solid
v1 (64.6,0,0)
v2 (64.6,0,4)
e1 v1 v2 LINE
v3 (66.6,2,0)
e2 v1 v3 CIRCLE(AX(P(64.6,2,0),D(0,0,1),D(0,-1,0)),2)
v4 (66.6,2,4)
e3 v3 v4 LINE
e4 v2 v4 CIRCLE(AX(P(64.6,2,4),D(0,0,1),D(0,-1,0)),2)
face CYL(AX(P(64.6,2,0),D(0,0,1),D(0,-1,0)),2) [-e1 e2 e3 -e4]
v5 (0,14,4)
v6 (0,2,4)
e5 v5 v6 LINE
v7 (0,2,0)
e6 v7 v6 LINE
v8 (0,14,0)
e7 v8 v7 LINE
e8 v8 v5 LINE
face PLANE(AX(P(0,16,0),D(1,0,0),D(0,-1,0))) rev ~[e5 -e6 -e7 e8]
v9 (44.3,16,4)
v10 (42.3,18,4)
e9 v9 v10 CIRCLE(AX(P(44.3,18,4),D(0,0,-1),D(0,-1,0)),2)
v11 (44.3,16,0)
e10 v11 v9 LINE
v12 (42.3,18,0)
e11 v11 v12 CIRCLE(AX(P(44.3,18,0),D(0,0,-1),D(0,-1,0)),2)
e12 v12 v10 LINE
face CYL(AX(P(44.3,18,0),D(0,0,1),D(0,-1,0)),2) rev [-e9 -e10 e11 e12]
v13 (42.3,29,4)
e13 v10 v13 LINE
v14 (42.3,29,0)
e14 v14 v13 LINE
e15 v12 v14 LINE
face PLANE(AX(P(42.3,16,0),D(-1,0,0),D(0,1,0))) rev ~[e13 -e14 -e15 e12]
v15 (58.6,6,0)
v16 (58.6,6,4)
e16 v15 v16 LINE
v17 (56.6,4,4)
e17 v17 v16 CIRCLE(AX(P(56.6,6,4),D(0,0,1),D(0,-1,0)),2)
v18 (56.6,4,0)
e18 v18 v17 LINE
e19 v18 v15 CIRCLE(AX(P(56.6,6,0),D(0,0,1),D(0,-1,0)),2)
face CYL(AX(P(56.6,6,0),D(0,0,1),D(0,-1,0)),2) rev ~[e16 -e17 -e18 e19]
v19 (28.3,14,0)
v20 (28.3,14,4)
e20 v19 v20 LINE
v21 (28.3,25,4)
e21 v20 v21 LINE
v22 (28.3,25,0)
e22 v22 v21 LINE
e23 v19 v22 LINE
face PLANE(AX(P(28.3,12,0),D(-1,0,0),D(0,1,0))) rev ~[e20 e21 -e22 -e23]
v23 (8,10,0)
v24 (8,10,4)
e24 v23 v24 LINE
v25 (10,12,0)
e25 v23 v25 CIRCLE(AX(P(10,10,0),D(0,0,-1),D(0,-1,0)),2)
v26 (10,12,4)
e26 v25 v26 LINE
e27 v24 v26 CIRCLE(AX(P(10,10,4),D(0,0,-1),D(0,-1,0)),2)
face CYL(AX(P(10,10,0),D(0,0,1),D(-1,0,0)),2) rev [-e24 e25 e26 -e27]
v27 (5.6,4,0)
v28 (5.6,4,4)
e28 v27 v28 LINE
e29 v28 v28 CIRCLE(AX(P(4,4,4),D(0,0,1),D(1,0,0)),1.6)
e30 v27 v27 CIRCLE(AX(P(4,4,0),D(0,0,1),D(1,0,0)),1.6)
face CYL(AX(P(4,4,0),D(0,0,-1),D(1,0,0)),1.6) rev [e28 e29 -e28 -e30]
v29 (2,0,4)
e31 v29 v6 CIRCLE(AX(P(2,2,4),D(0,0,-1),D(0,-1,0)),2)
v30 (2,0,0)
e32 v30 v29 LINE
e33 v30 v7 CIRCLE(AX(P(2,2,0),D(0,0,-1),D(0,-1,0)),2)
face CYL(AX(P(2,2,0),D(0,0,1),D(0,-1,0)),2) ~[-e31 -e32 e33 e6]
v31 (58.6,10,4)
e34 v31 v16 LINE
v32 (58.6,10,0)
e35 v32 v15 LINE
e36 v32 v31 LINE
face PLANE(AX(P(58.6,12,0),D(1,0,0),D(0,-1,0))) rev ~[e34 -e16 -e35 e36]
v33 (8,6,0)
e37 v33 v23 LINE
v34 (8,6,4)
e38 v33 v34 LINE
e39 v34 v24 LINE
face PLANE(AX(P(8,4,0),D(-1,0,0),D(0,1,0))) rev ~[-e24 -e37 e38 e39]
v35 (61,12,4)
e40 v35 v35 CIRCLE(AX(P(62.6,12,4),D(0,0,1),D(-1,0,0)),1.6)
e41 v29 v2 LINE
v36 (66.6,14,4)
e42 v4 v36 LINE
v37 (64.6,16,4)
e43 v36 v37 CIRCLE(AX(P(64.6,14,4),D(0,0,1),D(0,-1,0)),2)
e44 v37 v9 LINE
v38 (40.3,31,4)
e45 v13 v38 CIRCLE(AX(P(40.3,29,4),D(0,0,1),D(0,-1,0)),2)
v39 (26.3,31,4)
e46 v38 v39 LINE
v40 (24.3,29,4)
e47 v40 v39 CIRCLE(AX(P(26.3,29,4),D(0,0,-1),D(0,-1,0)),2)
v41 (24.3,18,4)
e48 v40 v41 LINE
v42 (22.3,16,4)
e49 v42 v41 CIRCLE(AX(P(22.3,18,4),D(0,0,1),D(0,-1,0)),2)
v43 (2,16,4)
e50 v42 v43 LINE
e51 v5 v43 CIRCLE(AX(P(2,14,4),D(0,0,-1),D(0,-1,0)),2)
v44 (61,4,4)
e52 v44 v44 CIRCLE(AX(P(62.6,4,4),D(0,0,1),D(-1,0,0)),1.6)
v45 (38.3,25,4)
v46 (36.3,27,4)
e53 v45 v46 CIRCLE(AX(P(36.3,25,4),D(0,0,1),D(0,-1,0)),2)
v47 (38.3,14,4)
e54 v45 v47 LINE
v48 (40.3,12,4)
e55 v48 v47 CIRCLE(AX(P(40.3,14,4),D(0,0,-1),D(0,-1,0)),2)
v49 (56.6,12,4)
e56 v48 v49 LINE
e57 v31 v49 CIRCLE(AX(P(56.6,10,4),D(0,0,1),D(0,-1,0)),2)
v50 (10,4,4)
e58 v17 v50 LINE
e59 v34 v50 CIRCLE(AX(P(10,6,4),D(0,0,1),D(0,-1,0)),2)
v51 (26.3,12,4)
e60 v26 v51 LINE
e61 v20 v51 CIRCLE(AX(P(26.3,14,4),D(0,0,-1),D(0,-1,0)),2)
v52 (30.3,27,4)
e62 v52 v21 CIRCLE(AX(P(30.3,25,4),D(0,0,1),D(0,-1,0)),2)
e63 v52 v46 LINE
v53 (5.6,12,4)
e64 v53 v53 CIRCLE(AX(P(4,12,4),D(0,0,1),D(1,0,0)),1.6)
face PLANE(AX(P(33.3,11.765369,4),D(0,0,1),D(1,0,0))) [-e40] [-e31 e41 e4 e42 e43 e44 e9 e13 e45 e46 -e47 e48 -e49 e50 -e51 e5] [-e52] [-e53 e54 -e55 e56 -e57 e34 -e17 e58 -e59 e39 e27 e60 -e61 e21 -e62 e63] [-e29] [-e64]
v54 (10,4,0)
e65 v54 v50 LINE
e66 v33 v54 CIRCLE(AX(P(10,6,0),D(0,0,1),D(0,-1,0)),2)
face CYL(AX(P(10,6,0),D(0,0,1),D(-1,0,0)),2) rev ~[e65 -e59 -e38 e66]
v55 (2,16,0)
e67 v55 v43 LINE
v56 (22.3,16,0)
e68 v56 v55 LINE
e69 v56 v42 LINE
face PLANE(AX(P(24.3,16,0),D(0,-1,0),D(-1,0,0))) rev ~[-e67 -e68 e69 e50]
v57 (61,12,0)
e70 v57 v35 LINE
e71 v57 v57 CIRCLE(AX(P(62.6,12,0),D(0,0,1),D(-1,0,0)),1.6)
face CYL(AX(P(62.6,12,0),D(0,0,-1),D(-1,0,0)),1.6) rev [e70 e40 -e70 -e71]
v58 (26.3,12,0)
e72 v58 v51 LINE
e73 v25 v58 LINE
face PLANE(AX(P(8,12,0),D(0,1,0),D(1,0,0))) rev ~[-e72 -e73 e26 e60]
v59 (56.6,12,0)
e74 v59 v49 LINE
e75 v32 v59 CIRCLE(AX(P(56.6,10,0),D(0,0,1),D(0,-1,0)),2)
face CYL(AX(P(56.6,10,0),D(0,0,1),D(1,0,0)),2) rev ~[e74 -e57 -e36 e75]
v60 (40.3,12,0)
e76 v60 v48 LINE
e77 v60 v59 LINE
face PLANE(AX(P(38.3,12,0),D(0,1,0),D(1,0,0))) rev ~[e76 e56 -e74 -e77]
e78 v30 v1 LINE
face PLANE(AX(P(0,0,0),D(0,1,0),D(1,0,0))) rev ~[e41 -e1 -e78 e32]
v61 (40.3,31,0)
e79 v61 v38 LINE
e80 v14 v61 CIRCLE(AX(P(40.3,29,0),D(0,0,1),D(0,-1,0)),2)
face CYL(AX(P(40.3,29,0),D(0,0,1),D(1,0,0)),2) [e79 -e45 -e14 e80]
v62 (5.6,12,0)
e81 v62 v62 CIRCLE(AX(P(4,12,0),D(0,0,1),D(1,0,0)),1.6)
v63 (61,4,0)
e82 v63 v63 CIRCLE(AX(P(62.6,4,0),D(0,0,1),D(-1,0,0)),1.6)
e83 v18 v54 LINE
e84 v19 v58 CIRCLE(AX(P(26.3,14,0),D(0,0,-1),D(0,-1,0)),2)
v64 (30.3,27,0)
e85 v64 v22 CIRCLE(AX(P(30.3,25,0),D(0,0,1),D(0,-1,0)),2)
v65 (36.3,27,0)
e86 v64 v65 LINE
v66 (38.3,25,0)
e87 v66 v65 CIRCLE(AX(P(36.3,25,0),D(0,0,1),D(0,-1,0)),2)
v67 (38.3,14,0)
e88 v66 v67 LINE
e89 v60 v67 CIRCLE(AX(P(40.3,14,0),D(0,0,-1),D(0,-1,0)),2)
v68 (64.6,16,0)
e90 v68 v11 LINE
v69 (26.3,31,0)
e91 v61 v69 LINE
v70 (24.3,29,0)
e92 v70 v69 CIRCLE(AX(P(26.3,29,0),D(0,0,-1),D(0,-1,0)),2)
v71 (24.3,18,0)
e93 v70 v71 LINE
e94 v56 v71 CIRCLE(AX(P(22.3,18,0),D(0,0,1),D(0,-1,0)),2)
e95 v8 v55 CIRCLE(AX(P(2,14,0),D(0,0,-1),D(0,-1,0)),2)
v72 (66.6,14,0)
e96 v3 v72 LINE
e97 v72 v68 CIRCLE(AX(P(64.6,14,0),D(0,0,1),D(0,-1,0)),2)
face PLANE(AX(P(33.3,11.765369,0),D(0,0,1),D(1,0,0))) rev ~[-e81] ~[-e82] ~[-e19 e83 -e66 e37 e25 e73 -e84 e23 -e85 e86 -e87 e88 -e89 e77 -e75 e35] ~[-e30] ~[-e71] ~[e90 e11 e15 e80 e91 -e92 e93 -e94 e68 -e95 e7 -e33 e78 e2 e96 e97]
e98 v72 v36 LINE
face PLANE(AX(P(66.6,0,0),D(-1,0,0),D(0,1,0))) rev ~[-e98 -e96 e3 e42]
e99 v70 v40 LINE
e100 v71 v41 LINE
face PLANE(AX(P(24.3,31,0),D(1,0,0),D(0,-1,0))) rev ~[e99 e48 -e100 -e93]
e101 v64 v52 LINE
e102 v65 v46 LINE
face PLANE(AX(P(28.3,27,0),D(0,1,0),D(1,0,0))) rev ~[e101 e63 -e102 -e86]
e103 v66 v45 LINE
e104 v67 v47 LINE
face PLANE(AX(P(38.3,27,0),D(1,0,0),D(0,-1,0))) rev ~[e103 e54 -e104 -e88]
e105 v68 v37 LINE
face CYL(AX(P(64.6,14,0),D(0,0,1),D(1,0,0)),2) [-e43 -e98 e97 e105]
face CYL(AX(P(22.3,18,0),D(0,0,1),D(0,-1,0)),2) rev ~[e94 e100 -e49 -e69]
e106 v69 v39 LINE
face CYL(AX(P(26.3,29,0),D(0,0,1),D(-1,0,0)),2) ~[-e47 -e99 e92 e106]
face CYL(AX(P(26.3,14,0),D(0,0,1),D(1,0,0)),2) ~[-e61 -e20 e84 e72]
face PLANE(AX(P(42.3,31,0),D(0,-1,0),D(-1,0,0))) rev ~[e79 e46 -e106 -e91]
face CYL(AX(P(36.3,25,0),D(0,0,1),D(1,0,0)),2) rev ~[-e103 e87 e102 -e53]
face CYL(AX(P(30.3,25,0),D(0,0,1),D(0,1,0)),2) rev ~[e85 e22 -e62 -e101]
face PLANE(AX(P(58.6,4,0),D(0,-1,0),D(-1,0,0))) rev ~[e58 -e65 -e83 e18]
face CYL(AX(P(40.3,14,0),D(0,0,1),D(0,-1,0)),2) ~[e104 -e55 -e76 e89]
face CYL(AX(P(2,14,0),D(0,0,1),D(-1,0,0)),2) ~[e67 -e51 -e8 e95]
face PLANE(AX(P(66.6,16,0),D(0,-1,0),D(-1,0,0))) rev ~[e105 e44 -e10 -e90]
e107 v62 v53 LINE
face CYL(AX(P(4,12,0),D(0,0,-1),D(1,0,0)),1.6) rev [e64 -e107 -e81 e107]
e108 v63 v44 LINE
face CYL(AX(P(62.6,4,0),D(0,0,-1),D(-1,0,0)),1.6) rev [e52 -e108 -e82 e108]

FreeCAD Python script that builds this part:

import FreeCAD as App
import Part
import Sketcher

V = App.Vector


def edges_at(feature, points):
    """Names of the edges that pass closest to the given points."""
    edges = feature.Shape.Edges
    near = lambda p: min(range(len(edges)), key=lambda i: edges[i].distToShape(Part.Vertex(*p))[0])
    return sorted({f"Edge{near(p) + 1}" for p in points})


def add_polygon(sketch, points):
    """Adds a closed chain of lines whose ends are joined by coincident constraints."""
    first, n = sketch.GeometryCount, len(points)
    for a, b in zip(points, points[1:] + points[:1]):
        sketch.addGeometry(Part.LineSegment(App.Vector(*a, 0), App.Vector(*b, 0)), False)
    for i in range(n):
        sketch.addConstraint(Sketcher.Constraint("Coincident", first + i, 2, first + (i + 1) % n, 1))

doc = App.newDocument("Part")
body = doc.addObject("PartDesign::Body", "Body")

sketch1 = body.newObject("Sketcher::SketchObject", "Sketch")
sketch1.AttachmentSupport = (doc.getObject("XY_Plane"), [""])
sketch1.MapMode = "FlatFace"
add_polygon(sketch1, [(0, 0), (66.6, 0), (66.6, 16), (42.3, 16), (42.3, 31), (24.3, 31), (24.3, 16), (0, 16)])
sketch1.addGeometry(Part.Circle(V(4, 4, 0), V(0, 0, 1), 1.6), False)
sketch1.addGeometry(Part.Circle(V(4, 12, 0), V(0, 0, 1), 1.6), False)
sketch1.addGeometry(Part.Circle(V(62.6, 4, 0), V(0, 0, 1), 1.6), False)
sketch1.addGeometry(Part.Circle(V(62.6, 12, 0), V(0, 0, 1), 1.6), False)
add_polygon(sketch1, [(8, 4), (8, 12), (28.3, 12), (28.3, 27), (38.3, 27), (38.3, 12), (58.6, 12), (58.6, 4)])
sketch1.addConstraint(Sketcher.Constraint("Horizontal", 0))
sketch1.addConstraint(Sketcher.Constraint("Vertical", 1))
sketch1.addConstraint(Sketcher.Constraint("Horizontal", 2))
sketch1.addConstraint(Sketcher.Constraint("Vertical", 3))
sketch1.addConstraint(Sketcher.Constraint("Horizontal", 4))
sketch1.addConstraint(Sketcher.Constraint("Vertical", 5))
sketch1.addConstraint(Sketcher.Constraint("Horizontal", 6))
sketch1.addConstraint(Sketcher.Constraint("Vertical", 7))
sketch1.addConstraint(Sketcher.Constraint("Vertical", 12))
sketch1.addConstraint(Sketcher.Constraint("Horizontal", 13))
sketch1.addConstraint(Sketcher.Constraint("Vertical", 14))
sketch1.addConstraint(Sketcher.Constraint("Horizontal", 15))
sketch1.addConstraint(Sketcher.Constraint("Vertical", 16))
sketch1.addConstraint(Sketcher.Constraint("Horizontal", 17))
sketch1.addConstraint(Sketcher.Constraint("Vertical", 18))
sketch1.addConstraint(Sketcher.Constraint("Horizontal", 19))
sketch1.addConstraint(Sketcher.Constraint("Coincident", 7, 2, -1, 1))
sketch1.addConstraint(Sketcher.Constraint("Equal", 8, 9))
sketch1.addConstraint(Sketcher.Constraint("Equal", 9, 10))
sketch1.addConstraint(Sketcher.Constraint("Equal", 10, 11))
sketch1.addConstraint(Sketcher.Constraint("Horizontal", 8, 3, 10, 3))
sketch1.addConstraint(Sketcher.Constraint("Horizontal", 9, 3, 11, 3))
sketch1.addConstraint(Sketcher.Constraint("Horizontal", 2, 2, 5, 2))
sketch1.addConstraint(Sketcher.Constraint("Horizontal", 11, 3, 12, 2))
sketch1.addConstraint(Sketcher.Constraint("Horizontal", 13, 2, 16, 2))
sketch1.addConstraint(Sketcher.Constraint("Horizontal", 10, 3, 18, 2))
sketch1.addConstraint(Sketcher.Constraint("Vertical", 8, 3, 9, 3))
sketch1.addConstraint(Sketcher.Constraint("Vertical", 10, 3, 11, 3))
sketch1.addConstraint(Sketcher.Constraint("Equal", 2, 6))
sketch1.addConstraint(Sketcher.Constraint("Equal", 13, 17))
sketch1.addConstraint(Sketcher.Constraint("Equal", 5, 14))
sketch1.addConstraint(Sketcher.Constraint("Diameter", 8, 3.2))
sketch1.addConstraint(Sketcher.Constraint("DistanceX", 4, 2, 4, 1, 18.0))
sketch1.addConstraint(Sketcher.Constraint("DistanceX", 15, 1, 15, 2, 10.0))
sketch1.addConstraint(Sketcher.Constraint("DistanceY", 1, 1, 1, 2, 16.0))
sketch1.addConstraint(Sketcher.Constraint("DistanceY", 3, 1, 3, 2, 15.0))
sketch1.addConstraint(Sketcher.Constraint("DistanceY", 12, 1, 12, 2, 8.0))
sketch1.addConstraint(Sketcher.Constraint("DistanceX", 0, 1, 0, 2, 66.6))
sketch1.addConstraint(Sketcher.Constraint("DistanceX", 13, 1, 13, 2, 20.3))
sketch1.addConstraint(Sketcher.Constraint("DistanceX", -1, 1, 8, 3, 4.0))
sketch1.addConstraint(Sketcher.Constraint("DistanceY", -1, 1, 8, 3, 4.0))
sketch1.addConstraint(Sketcher.Constraint("DistanceX", -1, 1, 12, 2, 8.0))
sketch1.addConstraint(Sketcher.Constraint("DistanceX", 10, 3, 0, 2, 4.0))
pad1 = body.newObject("PartDesign::Pad", "Pad")
pad1.Profile = sketch1
pad1.Length = 4
doc.recompute()

fillet = body.newObject("PartDesign::Fillet", "Fillet")
fillet.Base = (pad1, edges_at(pad1, [
    (0, 16, 2),
    (24.3, 16, 2),
    (24.3, 31, 2),
    (42.3, 31, 2),
    (42.3, 16, 2),
    (66.6, 16, 2),
    (66.6, 0, 2),
    (0, 0, 2),
    (58.6, 4, 2),
    (58.6, 12, 2),
    (38.3, 12, 2),
    (38.3, 27, 2),
    (28.3, 27, 2),
    (28.3, 12, 2),
    (8, 12, 2),
    (8, 4, 2),
]))
fillet.Radius = 2

doc.recompute()
